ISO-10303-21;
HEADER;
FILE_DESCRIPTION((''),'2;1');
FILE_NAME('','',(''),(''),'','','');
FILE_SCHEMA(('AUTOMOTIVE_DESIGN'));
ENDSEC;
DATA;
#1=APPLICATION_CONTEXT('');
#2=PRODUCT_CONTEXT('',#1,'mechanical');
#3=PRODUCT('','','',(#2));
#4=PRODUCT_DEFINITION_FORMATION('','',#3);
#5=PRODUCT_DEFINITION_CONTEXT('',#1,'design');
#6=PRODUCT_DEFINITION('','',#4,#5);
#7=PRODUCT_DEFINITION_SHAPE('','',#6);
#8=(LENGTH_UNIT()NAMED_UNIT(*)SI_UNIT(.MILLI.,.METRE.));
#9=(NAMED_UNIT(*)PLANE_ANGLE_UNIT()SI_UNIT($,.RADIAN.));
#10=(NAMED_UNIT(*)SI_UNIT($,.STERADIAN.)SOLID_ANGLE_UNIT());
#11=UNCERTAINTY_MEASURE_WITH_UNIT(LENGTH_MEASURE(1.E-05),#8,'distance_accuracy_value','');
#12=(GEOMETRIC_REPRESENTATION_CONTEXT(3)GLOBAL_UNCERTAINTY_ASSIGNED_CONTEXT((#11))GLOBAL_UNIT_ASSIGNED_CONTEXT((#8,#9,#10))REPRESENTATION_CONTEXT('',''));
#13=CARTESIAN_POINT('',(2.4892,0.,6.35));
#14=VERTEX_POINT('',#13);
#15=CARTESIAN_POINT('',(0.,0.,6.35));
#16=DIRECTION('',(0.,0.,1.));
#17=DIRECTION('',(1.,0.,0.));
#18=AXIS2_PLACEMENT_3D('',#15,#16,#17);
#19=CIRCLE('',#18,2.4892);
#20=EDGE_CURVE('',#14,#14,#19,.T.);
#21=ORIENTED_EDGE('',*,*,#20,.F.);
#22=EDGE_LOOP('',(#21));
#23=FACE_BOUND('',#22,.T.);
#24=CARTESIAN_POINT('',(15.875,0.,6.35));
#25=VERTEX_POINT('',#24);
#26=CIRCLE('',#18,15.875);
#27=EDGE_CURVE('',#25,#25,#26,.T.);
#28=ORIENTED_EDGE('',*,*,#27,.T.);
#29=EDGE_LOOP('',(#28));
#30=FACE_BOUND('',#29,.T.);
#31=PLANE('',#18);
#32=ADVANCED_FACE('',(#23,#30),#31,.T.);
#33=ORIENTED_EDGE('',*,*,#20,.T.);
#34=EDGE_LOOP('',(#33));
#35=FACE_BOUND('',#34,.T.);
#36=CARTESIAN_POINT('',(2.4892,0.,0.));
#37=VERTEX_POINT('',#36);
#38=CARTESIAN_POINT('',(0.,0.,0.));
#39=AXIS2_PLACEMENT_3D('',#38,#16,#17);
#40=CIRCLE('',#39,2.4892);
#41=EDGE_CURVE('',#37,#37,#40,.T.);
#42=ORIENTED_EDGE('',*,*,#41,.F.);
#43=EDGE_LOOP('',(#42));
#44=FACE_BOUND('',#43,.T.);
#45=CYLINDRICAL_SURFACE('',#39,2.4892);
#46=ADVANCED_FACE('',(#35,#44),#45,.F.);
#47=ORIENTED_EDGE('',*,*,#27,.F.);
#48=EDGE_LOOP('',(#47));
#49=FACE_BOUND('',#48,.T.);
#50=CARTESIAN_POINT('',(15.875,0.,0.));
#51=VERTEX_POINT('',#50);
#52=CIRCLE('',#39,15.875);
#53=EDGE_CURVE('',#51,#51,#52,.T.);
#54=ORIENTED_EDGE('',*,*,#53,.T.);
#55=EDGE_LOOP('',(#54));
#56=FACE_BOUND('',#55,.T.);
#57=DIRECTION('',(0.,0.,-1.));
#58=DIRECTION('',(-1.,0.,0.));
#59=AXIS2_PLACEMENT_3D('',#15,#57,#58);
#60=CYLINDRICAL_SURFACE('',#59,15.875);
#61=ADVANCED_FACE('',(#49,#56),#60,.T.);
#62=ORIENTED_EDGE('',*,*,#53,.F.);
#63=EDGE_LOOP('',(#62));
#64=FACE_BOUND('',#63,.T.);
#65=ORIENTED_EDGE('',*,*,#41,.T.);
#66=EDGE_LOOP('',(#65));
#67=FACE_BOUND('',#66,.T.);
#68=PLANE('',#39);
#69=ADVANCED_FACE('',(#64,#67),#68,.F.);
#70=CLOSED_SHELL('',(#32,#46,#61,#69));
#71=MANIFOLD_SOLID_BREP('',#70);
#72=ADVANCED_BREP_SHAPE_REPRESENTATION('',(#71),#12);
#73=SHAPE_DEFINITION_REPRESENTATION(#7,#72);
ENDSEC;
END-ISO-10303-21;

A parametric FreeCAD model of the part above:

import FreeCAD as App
import Part
import Sketcher
Q = App.Units.Quantity

doc = App.newDocument("Part")
params = doc.addObject("Spreadsheet::Sheet", "Params")
for row, (alias, value) in enumerate([
    ("sketch1_diameter", "1.25 in"),
    ("pad1_length", "0.25 in"),
    ("sketch2_diameter", "0.196 in"),
], start=1):
    params.set(f"A{row}", alias)
    params.set(f"B{row}", "=" + value)
    params.setAlias(f"B{row}", alias)

body = doc.addObject("PartDesign::Body", "Body")

sketch1 = doc.addObject("Sketcher::SketchObject", "Sketch")
body.addObject(sketch1)
sketch1.AttachmentSupport = (doc.XY_Plane, [""])
sketch1.MapMode = "FlatFace"
sketch1.addGeometry(Part.Circle(App.Vector(0, 0, 0), App.Vector(0, 0, 1), 16), False)
sketch1.addConstraint(Sketcher.Constraint("Coincident", 0, 3, -1, 1))
sketch1.addConstraint(Sketcher.Constraint("Diameter", 0, Q("1.25 in")))
sketch1.setExpression("Constraints[1]", "Params.sketch1_diameter")
pad1 = doc.addObject("PartDesign::Pad", "Pad")
body.addObject(pad1)
pad1.Profile = sketch1
pad1.setExpression("Length", "Params.pad1_length")

sketch2 = doc.addObject("Sketcher::SketchObject", "Sketch001")
body.addObject(sketch2)
sketch2.AttachmentSupport = (doc.XY_Plane, [""])
sketch2.MapMode = "FlatFace"
sketch2.AttachmentOffset = App.Placement(App.Vector(0, 0, 0.25 * 25.4), App.Rotation())
sketch2.addGeometry(Part.Circle(App.Vector(0, 0, 0), App.Vector(0, 0, 1), 2.5), False)
sketch2.addConstraint(Sketcher.Constraint("Coincident", 0, 3, -1, 1))
sketch2.addConstraint(Sketcher.Constraint("Diameter", 0, Q("0.196 in")))
sketch2.setExpression("Constraints[1]", "Params.sketch2_diameter")
pocket1 = doc.addObject("PartDesign::Pocket", "Pocket")
body.addObject(pocket1)
pocket1.Profile = sketch2
pocket1.Type = "ThroughAll"

doc.recompute()
